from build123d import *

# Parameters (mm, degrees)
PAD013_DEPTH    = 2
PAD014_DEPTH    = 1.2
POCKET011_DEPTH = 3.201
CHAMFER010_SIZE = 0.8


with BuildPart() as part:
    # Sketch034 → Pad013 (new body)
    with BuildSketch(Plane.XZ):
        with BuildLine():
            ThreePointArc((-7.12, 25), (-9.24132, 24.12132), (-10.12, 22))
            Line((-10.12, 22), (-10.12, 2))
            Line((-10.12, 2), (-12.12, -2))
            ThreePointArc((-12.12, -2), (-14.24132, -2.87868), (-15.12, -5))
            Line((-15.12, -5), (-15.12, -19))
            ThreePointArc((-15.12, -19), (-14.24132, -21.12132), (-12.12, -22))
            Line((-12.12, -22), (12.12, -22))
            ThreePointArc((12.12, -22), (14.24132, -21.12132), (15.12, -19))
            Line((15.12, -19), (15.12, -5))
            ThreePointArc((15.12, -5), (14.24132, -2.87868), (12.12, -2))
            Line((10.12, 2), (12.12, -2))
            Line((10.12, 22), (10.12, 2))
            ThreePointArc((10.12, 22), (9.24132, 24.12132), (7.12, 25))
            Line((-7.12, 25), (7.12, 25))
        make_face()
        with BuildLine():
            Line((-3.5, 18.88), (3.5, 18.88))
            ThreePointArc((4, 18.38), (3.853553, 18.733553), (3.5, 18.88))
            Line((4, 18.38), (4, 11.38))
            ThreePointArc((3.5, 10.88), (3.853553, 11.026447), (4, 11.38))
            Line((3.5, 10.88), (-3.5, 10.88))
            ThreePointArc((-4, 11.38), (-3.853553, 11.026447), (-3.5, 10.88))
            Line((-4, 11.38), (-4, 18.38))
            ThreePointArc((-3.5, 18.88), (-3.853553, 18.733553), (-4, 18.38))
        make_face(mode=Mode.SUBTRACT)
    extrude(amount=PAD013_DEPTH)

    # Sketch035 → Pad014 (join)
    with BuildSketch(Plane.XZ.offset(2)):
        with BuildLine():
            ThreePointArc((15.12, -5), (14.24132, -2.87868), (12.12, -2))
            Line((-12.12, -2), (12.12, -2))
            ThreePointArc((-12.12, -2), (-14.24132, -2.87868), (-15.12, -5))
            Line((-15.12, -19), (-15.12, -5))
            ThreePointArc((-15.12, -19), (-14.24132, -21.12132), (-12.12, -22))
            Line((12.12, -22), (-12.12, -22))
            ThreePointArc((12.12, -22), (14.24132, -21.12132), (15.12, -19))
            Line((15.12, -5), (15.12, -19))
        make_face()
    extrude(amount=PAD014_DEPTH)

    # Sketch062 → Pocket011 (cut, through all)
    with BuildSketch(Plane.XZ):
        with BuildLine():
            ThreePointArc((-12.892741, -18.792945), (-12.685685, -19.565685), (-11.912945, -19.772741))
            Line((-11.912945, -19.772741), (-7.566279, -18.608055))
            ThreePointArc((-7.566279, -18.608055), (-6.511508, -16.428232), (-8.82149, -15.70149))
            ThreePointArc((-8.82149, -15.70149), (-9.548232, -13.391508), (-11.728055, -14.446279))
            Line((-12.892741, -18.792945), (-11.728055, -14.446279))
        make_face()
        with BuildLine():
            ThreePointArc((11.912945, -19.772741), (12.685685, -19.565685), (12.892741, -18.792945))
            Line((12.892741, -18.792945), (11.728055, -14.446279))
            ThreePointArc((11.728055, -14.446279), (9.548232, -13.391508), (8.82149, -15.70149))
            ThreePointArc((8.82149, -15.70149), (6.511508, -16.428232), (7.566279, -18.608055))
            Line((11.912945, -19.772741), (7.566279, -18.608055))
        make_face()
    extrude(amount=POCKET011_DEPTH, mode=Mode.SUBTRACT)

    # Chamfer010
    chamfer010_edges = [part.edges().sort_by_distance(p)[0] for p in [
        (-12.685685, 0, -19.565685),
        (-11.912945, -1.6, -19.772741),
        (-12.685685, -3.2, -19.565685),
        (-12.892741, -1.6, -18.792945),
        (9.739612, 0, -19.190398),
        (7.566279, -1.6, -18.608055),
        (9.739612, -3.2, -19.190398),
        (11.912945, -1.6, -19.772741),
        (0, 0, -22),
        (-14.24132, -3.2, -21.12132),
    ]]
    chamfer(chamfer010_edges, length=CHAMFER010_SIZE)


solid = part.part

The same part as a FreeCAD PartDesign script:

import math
import FreeCAD as App
import Part
import Sketcher
from FreeCAD import Vector
Q = App.Units.Quantity


def edges_at(feature, points):
    """Names of the edges that pass closest to the given points."""
    edges = feature.Shape.Edges
    near = lambda p: min(range(len(edges)), key=lambda i: edges[i].distToShape(Part.Vertex(*p))[0])
    return sorted({f"Edge{near(p) + 1}" for p in points})

doc = App.newDocument("Part")
body = doc.addObject("PartDesign::Body", "Body")

sketch1 = body.newObject("Sketcher::SketchObject", "Sketch")
sketch1.AttachmentSupport = (doc.getObject("XZ_Plane"), [""])
sketch1.MapMode = "FlatFace"
sketch1.addGeometry([
    Part.ArcOfCircle(Part.Circle(Vector(-7.1, 22, 0), Vector(0, 0, 1), 3), math.radians(90), math.radians(180)),
    Part.LineSegment(Vector(-10.1, 22, 0), Vector(-10.1, 2, 0)),
    Part.LineSegment(Vector(-10.1, 2, 0), Vector(-12.1, -2, 0)),
    Part.ArcOfCircle(Part.Circle(Vector(-12.1, -5, 0), Vector(0, 0, 1), 3), math.radians(90), math.radians(180)),
    Part.LineSegment(Vector(-15.1, -5, 0), Vector(-15.1, -19, 0)),
    Part.ArcOfCircle(Part.Circle(Vector(-12.1, -19, 0), Vector(0, 0, 1), 3), math.radians(-180), math.radians(-90)),
    Part.LineSegment(Vector(-12.1, -22, 0), Vector(12.1, -22, 0)),
    Part.ArcOfCircle(Part.Circle(Vector(12.1, -19, 0), Vector(0, 0, 1), 3), math.radians(-90), math.radians(0)),
    Part.LineSegment(Vector(15.1, -19, 0), Vector(15.1, -5, 0)),
    Part.ArcOfCircle(Part.Circle(Vector(12.1, -5, 0), Vector(0, 0, 1), 3), math.radians(0), math.radians(90)),
    Part.LineSegment(Vector(12.1, -2, 0), Vector(10.1, 2, 0)),
    Part.LineSegment(Vector(10.1, 2, 0), Vector(10.1, 22, 0)),
    Part.ArcOfCircle(Part.Circle(Vector(7.1, 22, 0), Vector(0, 0, 1), 3), math.radians(0), math.radians(90)),
    Part.LineSegment(Vector(7.1, 25, 0), Vector(-7.1, 25, 0)),
    Part.ArcOfCircle(Part.Circle(Vector(-3.5, 18.4, 0), Vector(0, 0, 1), 0.5), math.radians(90), math.radians(180)),
    Part.LineSegment(Vector(-3.5, 18.9, 0), Vector(3.5, 18.9, 0)),
    Part.ArcOfCircle(Part.Circle(Vector(3.5, 18.4, 0), Vector(0, 0, 1), 0.5), math.radians(0), math.radians(90)),
    Part.LineSegment(Vector(4, 18.4, 0), Vector(4, 11.4, 0)),
    Part.ArcOfCircle(Part.Circle(Vector(3.5, 11.4, 0), Vector(0, 0, 1), 0.5), math.radians(-90), math.radians(0)),
    Part.LineSegment(Vector(3.5, 10.9, 0), Vector(-3.5, 10.9, 0)),
    Part.ArcOfCircle(Part.Circle(Vector(-3.5, 11.4, 0), Vector(0, 0, 1), 0.5), math.radians(-180), math.radians(-90)),
    Part.LineSegment(Vector(-4, 11.4, 0), Vector(-4, 18.4, 0)),
], False)
sketch1.addConstraint([
    Sketcher.Constraint("Tangent", 0, 2, 1, 1),
    Sketcher.Constraint("Coincident", 1, 2, 2, 1),
    Sketcher.Constraint("Coincident", 2, 2, 3, 1),
    Sketcher.Constraint("Tangent", 3, 2, 4, 1),
    Sketcher.Constraint("Tangent", 4, 2, 5, 1),
    Sketcher.Constraint("Tangent", 5, 2, 6, 1),
    Sketcher.Constraint("Tangent", 6, 2, 7, 1),
    Sketcher.Constraint("Tangent", 7, 2, 8, 1),
    Sketcher.Constraint("Tangent", 8, 2, 9, 1),
    Sketcher.Constraint("Coincident", 9, 2, 10, 1),
    Sketcher.Constraint("Coincident", 10, 2, 11, 1),
    Sketcher.Constraint("Tangent", 11, 2, 12, 1),
    Sketcher.Constraint("Tangent", 12, 2, 13, 1),
    Sketcher.Constraint("Tangent", 13, 2, 0, 1),
    Sketcher.Constraint("Coincident", 14, 1, 15, 1),
    Sketcher.Constraint("Coincident", 15, 2, 16, 2),
    Sketcher.Constraint("Coincident", 16, 1, 17, 1),
    Sketcher.Constraint("Coincident", 17, 2, 18, 2),
    Sketcher.Constraint("Coincident", 18, 1, 19, 1),
    Sketcher.Constraint("Coincident", 19, 2, 20, 2),
    Sketcher.Constraint("Coincident", 20, 1, 21, 1),
    Sketcher.Constraint("Coincident", 21, 2, 14, 2),
    Sketcher.Constraint("Vertical", 1),
    Sketcher.Constraint("Vertical", 4),
    Sketcher.Constraint("Horizontal", 6),
    Sketcher.Constraint("Vertical", 8),
    Sketcher.Constraint("Vertical", 11),
    Sketcher.Constraint("Horizontal", 13),
    Sketcher.Constraint("Horizontal", 15),
    Sketcher.Constraint("Vertical", 17),
    Sketcher.Constraint("Horizontal", 19),
    Sketcher.Constraint("Vertical", 21),
    Sketcher.Constraint("Equal", 0, 3),
    Sketcher.Constraint("Equal", 3, 5),
    Sketcher.Constraint("Equal", 5, 7),
    Sketcher.Constraint("Equal", 7, 9),
    Sketcher.Constraint("Equal", 9, 12),
    Sketcher.Constraint("Equal", 14, 16),
    Sketcher.Constraint("Equal", 16, 18),
    Sketcher.Constraint("Equal", 18, 20),
    Sketcher.Constraint("Symmetric", 3, 3, 9, 3, -2),
    Sketcher.Constraint("Symmetric", 1, 2, 10, 2, -2),
    Sketcher.Constraint("Symmetric", 17, 2, 20, 1, -2),
    Sketcher.Constraint("Horizontal", 14, 3, 16, 1),
    Sketcher.Constraint("Horizontal", 20, 3, 17, 2),
    Sketcher.Constraint("Horizontal", 16, 1, 21, 2),
    Sketcher.Constraint("Vertical", 5, 3, 2, 2),
    Sketcher.Constraint("Vertical", 6, 2, 9, 2),
    Sketcher.Constraint("Vertical", 20, 3, 14, 1),
    Sketcher.Constraint("Vertical", 18, 3, 15, 2),
    Sketcher.Constraint("Vertical", 15, 2, 18, 1),
    Sketcher.Constraint("Vertical", 14, 1, 19, 2),
    Sketcher.Constraint("Equal", 19, 17),
    Sketcher.Constraint("Radius", 0, Q("3.000001 mm")),
    Sketcher.Constraint("Radius", 14, Q("0.500001 mm")),
    Sketcher.Constraint("DistanceX", 15, 1, 15, 2, Q("7 mm")),
    Sketcher.Constraint("DistanceY", 1, 2, 1, 1, Q("20 mm")),
    Sketcher.Constraint("DistanceY", 4, 2, 4, 1, Q("14 mm")),
    Sketcher.Constraint("DistanceY", -1, 1, 0, 3, Q("21.999999 mm")),
    Sketcher.Constraint("DistanceY", 3, 3, -1, 1, Q("5.000001 mm")),
    Sketcher.Constraint("DistanceX", 3, 3, 0, 3, Q("5 mm")),
    Sketcher.Constraint("DistanceX", 6, 1, 6, 2, Q("24.24 mm")),
    Sketcher.Constraint("DistanceY", -1, 1, 14, 3, Q("18.379999 mm")),
])
pad1 = body.newObject("PartDesign::Pad", "Pad")
pad1.Profile = sketch1
pad1.Length = 2

sketch2 = body.newObject("Sketcher::SketchObject", "Sketch001")
sketch2.AttachmentSupport = (doc.getObject("XZ_Plane"), [""])
sketch2.MapMode = "FlatFace"
sketch2.AttachmentOffset = App.Placement(Vector(0, 0, 2), App.Rotation())
sketch2.addGeometry([
    Part.ArcOfCircle(Part.Circle(Vector(12.1, -5, 0), Vector(0, 0, 1), 3), math.radians(0), math.radians(90)),
    Part.LineSegment(Vector(12.1, -2, 0), Vector(-12.1, -2, 0)),
    Part.ArcOfCircle(Part.Circle(Vector(-12.1, -5, 0), Vector(0, 0, 1), 3), math.radians(90), math.radians(180)),
    Part.LineSegment(Vector(-15.1, -5, 0), Vector(-15.1, -19, 0)),
    Part.ArcOfCircle(Part.Circle(Vector(-12.1, -19, 0), Vector(0, 0, 1), 3), math.radians(-180), math.radians(-90)),
    Part.LineSegment(Vector(-12.1, -22, 0), Vector(12.1, -22, 0)),
    Part.ArcOfCircle(Part.Circle(Vector(12.1, -19, 0), Vector(0, 0, 1), 3), math.radians(-90), math.radians(0)),
    Part.LineSegment(Vector(15.1, -19, 0), Vector(15.1, -5, 0)),
], False)
sketch2.addConstraint([
    Sketcher.Constraint("Tangent", 0, 2, 1, 1),
    Sketcher.Constraint("Tangent", 1, 2, 2, 1),
    Sketcher.Constraint("Tangent", 2, 2, 3, 1),
    Sketcher.Constraint("Tangent", 3, 2, 4, 1),
    Sketcher.Constraint("Tangent", 4, 2, 5, 1),
    Sketcher.Constraint("Tangent", 5, 2, 6, 1),
    Sketcher.Constraint("Tangent", 6, 2, 7, 1),
    Sketcher.Constraint("Tangent", 7, 2, 0, 1),
    Sketcher.Constraint("Horizontal", 1),
    Sketcher.Constraint("Vertical", 3),
    Sketcher.Constraint("Horizontal", 5),
    Sketcher.Constraint("Vertical", 7),
    Sketcher.Constraint("Equal", 0, 2),
    Sketcher.Constraint("Equal", 2, 4),
    Sketcher.Constraint("Equal", 4, 6),
    Sketcher.Constraint("Radius", 0, Q("3.000001 mm")),
    Sketcher.Constraint("DistanceY", 3, 2, 3, 1, Q("14 mm")),
    Sketcher.Constraint("DistanceY", 0, 3, -1, 1, Q("5.000001 mm")),
    Sketcher.Constraint("DistanceX", 1, 2, 1, 1, Q("24.24 mm")),
    Sketcher.Constraint("DistanceX", -1, 1, 0, 3, Q("12.119999 mm")),
])
pad2 = body.newObject("PartDesign::Pad", "Pad001")
pad2.Profile = sketch2
pad2.Length = 1.2

sketch3 = body.newObject("Sketcher::SketchObject", "Sketch002")
sketch3.AttachmentSupport = (doc.getObject("XZ_Plane"), [""])
sketch3.MapMode = "FlatFace"
sketch3.addGeometry([
    Part.ArcOfCircle(Part.Circle(Vector(-12.1, -19, 0), Vector(0, 0, 1), 0.8), math.radians(165), math.radians(285)),
    Part.LineSegment(Vector(-11.9, -19.8, 0), Vector(-7.6, -18.6, 0)),
    Part.ArcOfCircle(Part.Circle(Vector(-8, -17.1, 0), Vector(0, 0, 1), 1.6), math.radians(-75), math.radians(122)),
    Part.ArcOfCircle(Part.Circle(Vector(-10.2, -14.9, 0), Vector(0, 0, 1), 1.6), math.radians(-32), math.radians(165)),
    Part.LineSegment(Vector(-11.7, -14.4, 0), Vector(-12.9, -18.8, 0)),
    Part.ArcOfCircle(Part.Circle(Vector(12.1, -19, 0), Vector(0, 0, 1), 0.8), math.radians(-105), math.radians(15)),
    Part.LineSegment(Vector(12.9, -18.8, 0), Vector(11.7, -14.4, 0)),
    Part.ArcOfCircle(Part.Circle(Vector(10.2, -14.9, 0), Vector(0, 0, 1), 1.6), math.radians(15), math.radians(212)),
    Part.ArcOfCircle(Part.Circle(Vector(8, -17.1, 0), Vector(0, 0, 1), 1.6), math.radians(58), math.radians(255)),
    Part.LineSegment(Vector(7.6, -18.6, 0), Vector(11.9, -19.8, 0)),
], False)
sketch3.addConstraint([
    Sketcher.Constraint("Coincident", 0, 2, 1, 1),
    Sketcher.Constraint("Tangent", 1, 2, 2, 1),
    Sketcher.Constraint("Coincident", 2, 2, 3, 1),
    Sketcher.Constraint("Tangent", 3, 2, 4, 1),
    Sketcher.Constraint("Coincident", 4, 2, 0, 1),
    Sketcher.Constraint("Coincident", 5, 2, 6, 1),
    Sketcher.Constraint("Tangent", 6, 2, 7, 1),
    Sketcher.Constraint("Coincident", 7, 2, 8, 1),
    Sketcher.Constraint("Tangent", 8, 2, 9, 1),
    Sketcher.Constraint("Coincident", 9, 2, 5, 1),
    Sketcher.Constraint("Equal", 2, 3),
    Sketcher.Constraint("Equal", 0, 5),
    Sketcher.Constraint("Equal", 3, 7),
    Sketcher.Constraint("Equal", 7, 8),
    Sketcher.Constraint("Symmetric", 0, 3, 5, 3, -2),
    Sketcher.Constraint("Symmetric", 3, 3, 7, 3, -2),
    Sketcher.Constraint("Symmetric", 2, 3, 8, 3, -2),
    Sketcher.Constraint("Perpendicular", 1, 6),
    Sketcher.Constraint("Horizontal", 4, 2, 5, 2),
    Sketcher.Constraint("Horizontal", 0, 2, 9, 2),
    Sketcher.Constraint("Equal", 1, 4),
    Sketcher.Constraint("Radius", 0, Q("0.800001 mm")),
    Sketcher.Constraint("Radius", 2, Q("1.6 mm")),
    Sketcher.Constraint("Angle", 1, Q("15.000004 deg")),
    Sketcher.Constraint("DistanceY", 0, 3, -1, 1, Q("18.999999 mm")),
    Sketcher.Constraint("Distance", 1, Q("4.5 mm")),
    Sketcher.Constraint("DistanceX", 0, 3, -1, 1, Q("12.119999 mm")),
    Sketcher.Constraint("DistanceY", 2, 2, 3, 3, Q("0.841101 mm")),
    Sketcher.Constraint("DistanceX", 2, 2, 2, 3, Q("0.841101 mm")),
])
pocket1 = body.newObject("PartDesign::Pocket", "Pocket")
pocket1.Profile = sketch3
pocket1.Type = "ThroughAll"
pocket1.Reversed = True
doc.recompute()

chamfer = body.newObject("PartDesign::Chamfer", "Chamfer")
chamfer.Base = (pocket1, edges_at(pocket1, [
    (-12.686, 0, -19.566),
    (-11.913, -1.6, -19.773),
    (-12.686, -3.2, -19.566),
    (-12.893, -1.6, -18.793),
    (9.74, 0, -19.19),
    (7.566, -1.6, -18.608),
    (9.74, -3.2, -19.19),
    (11.913, -1.6, -19.773),
    (0, 0, -22),
    (-14.241, -3.2, -21.121),
]))
chamfer.Size = 0.8

doc.recompute()
